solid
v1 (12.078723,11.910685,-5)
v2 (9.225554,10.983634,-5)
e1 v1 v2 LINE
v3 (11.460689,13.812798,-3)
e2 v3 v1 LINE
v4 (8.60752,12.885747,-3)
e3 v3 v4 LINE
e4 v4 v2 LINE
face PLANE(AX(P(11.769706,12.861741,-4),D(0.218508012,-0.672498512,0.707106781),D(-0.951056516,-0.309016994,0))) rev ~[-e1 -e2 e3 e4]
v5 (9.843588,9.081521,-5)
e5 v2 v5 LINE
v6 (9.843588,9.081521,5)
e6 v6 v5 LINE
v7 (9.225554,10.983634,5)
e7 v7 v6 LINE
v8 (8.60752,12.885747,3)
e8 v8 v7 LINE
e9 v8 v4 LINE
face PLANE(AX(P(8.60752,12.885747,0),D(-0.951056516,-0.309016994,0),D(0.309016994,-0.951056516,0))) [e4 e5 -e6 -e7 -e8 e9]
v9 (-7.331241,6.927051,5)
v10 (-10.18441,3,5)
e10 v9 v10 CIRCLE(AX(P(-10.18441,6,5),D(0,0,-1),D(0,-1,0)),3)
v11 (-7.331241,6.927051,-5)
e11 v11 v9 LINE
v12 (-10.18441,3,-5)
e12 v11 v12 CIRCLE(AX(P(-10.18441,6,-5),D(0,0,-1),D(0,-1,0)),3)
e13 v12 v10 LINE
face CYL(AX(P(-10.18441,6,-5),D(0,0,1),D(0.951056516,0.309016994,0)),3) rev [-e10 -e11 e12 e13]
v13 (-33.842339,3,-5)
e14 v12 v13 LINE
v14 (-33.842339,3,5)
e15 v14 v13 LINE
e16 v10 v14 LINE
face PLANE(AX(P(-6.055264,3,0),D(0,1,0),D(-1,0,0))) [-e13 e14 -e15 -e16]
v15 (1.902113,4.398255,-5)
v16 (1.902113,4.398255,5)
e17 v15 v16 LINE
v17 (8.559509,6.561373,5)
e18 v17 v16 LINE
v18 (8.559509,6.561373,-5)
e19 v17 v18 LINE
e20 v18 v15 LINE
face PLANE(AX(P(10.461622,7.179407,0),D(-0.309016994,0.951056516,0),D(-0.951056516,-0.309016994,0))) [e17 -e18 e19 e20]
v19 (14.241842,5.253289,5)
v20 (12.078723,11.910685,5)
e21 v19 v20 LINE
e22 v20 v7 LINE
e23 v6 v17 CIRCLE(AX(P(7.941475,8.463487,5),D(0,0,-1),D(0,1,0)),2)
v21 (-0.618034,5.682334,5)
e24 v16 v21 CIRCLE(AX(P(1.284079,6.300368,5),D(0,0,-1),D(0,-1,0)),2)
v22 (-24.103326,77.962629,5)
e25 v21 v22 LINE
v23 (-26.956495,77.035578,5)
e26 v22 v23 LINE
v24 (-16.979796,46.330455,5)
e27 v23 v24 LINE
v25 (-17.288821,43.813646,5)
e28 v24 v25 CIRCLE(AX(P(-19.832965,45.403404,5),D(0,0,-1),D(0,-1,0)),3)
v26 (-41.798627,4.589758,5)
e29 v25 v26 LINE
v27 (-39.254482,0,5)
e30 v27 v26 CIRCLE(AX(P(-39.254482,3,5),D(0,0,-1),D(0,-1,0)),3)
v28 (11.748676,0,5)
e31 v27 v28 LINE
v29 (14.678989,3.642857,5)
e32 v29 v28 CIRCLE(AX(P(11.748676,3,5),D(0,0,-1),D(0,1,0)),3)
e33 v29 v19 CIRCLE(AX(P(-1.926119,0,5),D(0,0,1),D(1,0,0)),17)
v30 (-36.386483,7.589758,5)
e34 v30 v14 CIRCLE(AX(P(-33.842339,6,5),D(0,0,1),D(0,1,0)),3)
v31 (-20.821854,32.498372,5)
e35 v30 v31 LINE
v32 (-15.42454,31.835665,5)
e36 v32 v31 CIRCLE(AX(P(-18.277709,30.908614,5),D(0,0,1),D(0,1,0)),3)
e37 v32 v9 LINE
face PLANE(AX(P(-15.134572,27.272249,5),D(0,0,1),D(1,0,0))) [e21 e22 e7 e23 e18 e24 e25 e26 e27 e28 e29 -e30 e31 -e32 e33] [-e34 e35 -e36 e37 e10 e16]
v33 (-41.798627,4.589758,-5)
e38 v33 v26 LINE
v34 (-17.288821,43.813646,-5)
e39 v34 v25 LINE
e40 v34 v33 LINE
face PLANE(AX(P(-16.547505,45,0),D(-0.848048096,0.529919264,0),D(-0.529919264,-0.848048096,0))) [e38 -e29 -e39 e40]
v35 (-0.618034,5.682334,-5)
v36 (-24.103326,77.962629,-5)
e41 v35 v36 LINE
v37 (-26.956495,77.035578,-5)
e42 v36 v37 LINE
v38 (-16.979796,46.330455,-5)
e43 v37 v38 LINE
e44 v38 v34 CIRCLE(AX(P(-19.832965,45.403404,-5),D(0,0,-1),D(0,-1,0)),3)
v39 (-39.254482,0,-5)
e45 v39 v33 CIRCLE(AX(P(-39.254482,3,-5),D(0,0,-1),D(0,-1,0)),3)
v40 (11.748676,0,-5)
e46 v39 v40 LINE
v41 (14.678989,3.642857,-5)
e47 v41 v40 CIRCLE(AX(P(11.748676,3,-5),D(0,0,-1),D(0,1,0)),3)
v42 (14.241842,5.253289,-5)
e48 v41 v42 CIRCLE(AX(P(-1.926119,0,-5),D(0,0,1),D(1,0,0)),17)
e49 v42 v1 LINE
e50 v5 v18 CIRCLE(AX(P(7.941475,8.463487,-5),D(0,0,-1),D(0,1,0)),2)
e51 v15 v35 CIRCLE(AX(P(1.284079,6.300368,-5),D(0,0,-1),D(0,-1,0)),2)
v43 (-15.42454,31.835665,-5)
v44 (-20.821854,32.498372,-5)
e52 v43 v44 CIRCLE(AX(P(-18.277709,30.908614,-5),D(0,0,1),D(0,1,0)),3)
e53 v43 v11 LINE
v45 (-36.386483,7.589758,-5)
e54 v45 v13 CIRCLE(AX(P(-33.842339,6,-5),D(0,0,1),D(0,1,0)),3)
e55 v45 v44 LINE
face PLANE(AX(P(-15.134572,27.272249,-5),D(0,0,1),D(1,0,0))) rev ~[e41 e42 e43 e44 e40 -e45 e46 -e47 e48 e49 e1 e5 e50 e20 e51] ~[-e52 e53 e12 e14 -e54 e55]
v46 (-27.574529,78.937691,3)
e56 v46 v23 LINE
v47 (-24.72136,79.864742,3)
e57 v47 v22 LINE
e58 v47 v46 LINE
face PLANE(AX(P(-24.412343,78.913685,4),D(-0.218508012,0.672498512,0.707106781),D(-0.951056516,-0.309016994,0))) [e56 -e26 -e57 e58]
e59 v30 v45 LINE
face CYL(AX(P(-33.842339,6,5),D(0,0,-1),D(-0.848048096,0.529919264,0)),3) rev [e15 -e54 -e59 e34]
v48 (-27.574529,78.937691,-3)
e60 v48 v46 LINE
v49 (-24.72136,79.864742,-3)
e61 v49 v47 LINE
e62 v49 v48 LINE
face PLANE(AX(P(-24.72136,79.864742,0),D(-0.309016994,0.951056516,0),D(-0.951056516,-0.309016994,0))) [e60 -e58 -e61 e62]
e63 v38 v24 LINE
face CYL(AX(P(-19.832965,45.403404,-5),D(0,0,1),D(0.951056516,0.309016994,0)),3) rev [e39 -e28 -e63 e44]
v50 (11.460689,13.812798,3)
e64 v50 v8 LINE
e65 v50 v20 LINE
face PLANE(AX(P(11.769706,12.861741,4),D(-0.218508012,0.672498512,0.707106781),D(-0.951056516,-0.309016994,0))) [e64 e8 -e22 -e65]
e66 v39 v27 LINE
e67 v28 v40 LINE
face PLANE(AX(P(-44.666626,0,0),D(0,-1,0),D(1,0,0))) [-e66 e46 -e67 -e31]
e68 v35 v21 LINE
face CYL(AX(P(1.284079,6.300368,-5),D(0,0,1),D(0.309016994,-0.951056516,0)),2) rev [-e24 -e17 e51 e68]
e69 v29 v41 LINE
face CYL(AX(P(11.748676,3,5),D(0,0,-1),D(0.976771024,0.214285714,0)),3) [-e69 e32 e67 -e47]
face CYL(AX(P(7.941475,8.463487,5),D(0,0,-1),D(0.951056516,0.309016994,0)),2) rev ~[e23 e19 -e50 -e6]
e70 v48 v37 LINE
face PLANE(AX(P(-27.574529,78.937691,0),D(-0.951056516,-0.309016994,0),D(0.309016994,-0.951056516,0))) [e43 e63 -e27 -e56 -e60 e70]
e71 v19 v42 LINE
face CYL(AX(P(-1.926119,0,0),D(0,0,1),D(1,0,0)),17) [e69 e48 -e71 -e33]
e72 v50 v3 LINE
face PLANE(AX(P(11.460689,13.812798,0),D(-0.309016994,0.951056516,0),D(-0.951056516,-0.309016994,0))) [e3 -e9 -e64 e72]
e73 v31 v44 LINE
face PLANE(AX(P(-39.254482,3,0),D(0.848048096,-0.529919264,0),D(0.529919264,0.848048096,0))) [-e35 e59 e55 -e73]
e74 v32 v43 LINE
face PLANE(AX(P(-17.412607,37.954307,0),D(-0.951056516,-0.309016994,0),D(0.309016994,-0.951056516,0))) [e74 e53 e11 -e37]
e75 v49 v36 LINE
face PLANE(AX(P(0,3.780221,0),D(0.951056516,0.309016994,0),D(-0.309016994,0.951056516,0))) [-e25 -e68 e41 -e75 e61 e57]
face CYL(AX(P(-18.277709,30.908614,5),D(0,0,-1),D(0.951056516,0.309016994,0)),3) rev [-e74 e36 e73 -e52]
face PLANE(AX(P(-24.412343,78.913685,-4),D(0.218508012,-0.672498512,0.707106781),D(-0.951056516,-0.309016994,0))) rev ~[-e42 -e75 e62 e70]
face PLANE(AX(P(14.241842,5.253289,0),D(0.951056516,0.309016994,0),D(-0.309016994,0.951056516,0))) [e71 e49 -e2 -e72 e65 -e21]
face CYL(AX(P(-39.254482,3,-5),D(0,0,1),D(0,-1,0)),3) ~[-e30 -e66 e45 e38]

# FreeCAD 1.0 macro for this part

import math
import FreeCAD as App
import Part
import Sketcher
Q = App.Units.Quantity


def edges_at(feature, points):
    """Names of the edges that pass closest to the given points."""
    edges = feature.Shape.Edges
    near = lambda p: min(range(len(edges)), key=lambda i: edges[i].distToShape(Part.Vertex(*p))[0])
    return sorted({f"Edge{near(p) + 1}" for p in points})

doc = App.newDocument("Part")
params = doc.addObject("Spreadsheet::Sheet", "Params")
for row, (alias, value) in enumerate([
    ("sketch1_radius", "17 mm"),
    ("sketch1_length", "11 mm"),
    ("sketch1_length2", "80 mm"),
    ("sketch1_length3", "3 mm"),
    ("sketch1_length4", "9 mm"),
    ("pad1_length", "10 mm"),
    ("chamfer_size", "2 mm"),
    ("fillet_radius", "3 mm"),
    ("fillet2_radius", "2 mm"),
], start=1):
    params.set(f"A{row}", alias)
    params.set(f"B{row}", "=" + value)
    params.setAlias(f"B{row}", alias)

body = doc.addObject("PartDesign::Body", "Body")

# Sketch on XY plane
sketch1 = doc.addObject("Sketcher::SketchObject", "Sketch")
body.addObject(sketch1)
sketch1.AttachmentSupport = (doc.XY_Plane, [""])
sketch1.MapMode = "FlatFace"
sketch1.addGeometry([
    Part.LineSegment(App.Vector(10.5, 7.2, 0), App.Vector(0, 3.8, 0)),  # 0
    Part.LineSegment(App.Vector(0, 3.8, 0), App.Vector(-24.7, 79.9, 0)),  # 1
    Part.LineSegment(App.Vector(-24.7, 79.9, 0), App.Vector(-27.6, 78.9, 0)),  # 2
    Part.LineSegment(App.Vector(-27.6, 78.9, 0), App.Vector(-16.5, 45, 0)),  # 3
    Part.LineSegment(App.Vector(-16.5, 45, 0), App.Vector(-44.7, 0, 0)),  # 4
    Part.LineSegment(App.Vector(-44.7, 0, 0), App.Vector(15.1, 0, 0)),  # 5
    Part.ArcOfCircle(Part.Circle(App.Vector(-1.9, 0, 0), App.Vector(0, 0, 1), 17), math.radians(0), math.radians(18)),  # 6
    Part.LineSegment(App.Vector(14.2, 5.3, 0), App.Vector(11.5, 13.8, 0)),  # 7
    Part.LineSegment(App.Vector(11.5, 13.8, 0), App.Vector(8.6, 12.9, 0)),  # 8
    Part.LineSegment(App.Vector(8.6, 12.9, 0), App.Vector(10.5, 7.2, 0)),  # 9
    Part.LineSegment(App.Vector(-17.4, 38, 0), App.Vector(-6.1, 3, 0)),  # 10
    Part.LineSegment(App.Vector(-6.1, 3, 0), App.Vector(-39.3, 3, 0)),  # 11
    Part.LineSegment(App.Vector(-39.3, 3, 0), App.Vector(-17.4, 38, 0)),  # 12
], False)
sketch1.addConstraint([
    Sketcher.Constraint("Coincident", 0, 2, 1, 1),
    Sketcher.Constraint("Coincident", 1, 2, 2, 1),
    Sketcher.Constraint("Coincident", 2, 2, 3, 1),
    Sketcher.Constraint("Coincident", 3, 2, 4, 1),
    Sketcher.Constraint("Coincident", 4, 2, 5, 1),
    Sketcher.Constraint("Coincident", 5, 2, 6, 1),
    Sketcher.Constraint("Tangent", 6, 2, 7, 1),
    Sketcher.Constraint("Coincident", 7, 2, 8, 1),
    Sketcher.Constraint("Coincident", 8, 2, 9, 1),
    Sketcher.Constraint("Coincident", 9, 2, 0, 1),
    Sketcher.Constraint("Coincident", 10, 2, 11, 1),
    Sketcher.Constraint("Coincident", 11, 2, 12, 1),
    Sketcher.Constraint("Coincident", 12, 2, 10, 1),
    Sketcher.Constraint("Horizontal", 5),
    Sketcher.Constraint("Horizontal", 11),
    Sketcher.Constraint("PointOnObject", 6, 3, -1),
    Sketcher.Constraint("PointOnObject", 0, 2, -2),
    Sketcher.Constraint("PointOnObject", 4, 2, -1),
    Sketcher.Constraint("Perpendicular", 0, 1),
    Sketcher.Constraint("Perpendicular", 1, 2),
    Sketcher.Constraint("Perpendicular", 2, 3),
    Sketcher.Constraint("Parallel", 3, 7),
    Sketcher.Constraint("Perpendicular", 7, 8),
    Sketcher.Constraint("Perpendicular", 8, 9),
    Sketcher.Constraint("Parallel", 9, 10),
    Sketcher.Constraint("Parallel", 4, 12),
    Sketcher.Constraint("Equal", 2, 8),
    Sketcher.Constraint("Radius", 6, 17.0),
    Sketcher.Constraint("Angle", 0, Q("-162 deg")),
    Sketcher.Constraint("Angle", 4, Q("-122 deg")),
    Sketcher.Constraint("Distance", 0, 11.0),
    Sketcher.Constraint("Distance", 1, 80.0),
    Sketcher.Constraint("Distance", 2, 3.0),
    Sketcher.Constraint("Distance", 7, 9.0),
    Sketcher.Constraint("Distance", 9, 6.0),
    Sketcher.Constraint("DistanceY", -1, 1, 3, 2, 45.0),
    Sketcher.Constraint("DistanceY", -1, 1, 10, 2, 3.0),
    Sketcher.Constraint("DistanceX", 11, 2, 11, 1, 33.199218),
    Sketcher.Constraint("DistanceX", 10, 2, -1, 1, 6.055264),
])
sketch1.setExpression("Constraints[27]", "Params.sketch1_radius")
sketch1.setExpression("Constraints[30]", "Params.sketch1_length")
sketch1.setExpression("Constraints[31]", "Params.sketch1_length2")
sketch1.setExpression("Constraints[32]", "Params.sketch1_length3")
sketch1.setExpression("Constraints[33]", "Params.sketch1_length4")
pad1 = doc.addObject("PartDesign::Pad", "Pad")
body.addObject(pad1)
pad1.Profile = sketch1
pad1.setExpression("Length", "Params.pad1_length")
pad1.Midplane = True
doc.recompute()

chamfer = doc.addObject("PartDesign::Chamfer", "Chamfer")
body.addObject(chamfer)
chamfer.Base = (pad1, edges_at(pad1, [
    (10.034, 13.349, 5),
    (10.034, 13.349, -5),
    (-26.148, 79.401, 5),
    (-26.148, 79.401, -5),
]))
chamfer.setExpression("Size", "Params.chamfer_size")
doc.recompute()

fillet = doc.addObject("PartDesign::Fillet", "Fillet")
body.addObject(fillet)
fillet.Base = (chamfer, edges_at(chamfer, [
    (-17.413, 37.954, 0),
    (-39.254, 3, 0),
    (-6.055, 3, 0),
    (-44.667, 0, 0),
    (-16.548, 45, 0),
    (15.074, 0, 0),
]))
fillet.setExpression("Radius", "Params.fillet_radius")
doc.recompute()

fillet2 = doc.addObject("PartDesign::Fillet", "Fillet001")
body.addObject(fillet2)
fillet2.Base = (fillet, edges_at(fillet, [(0, 3.78, 0), (10.462, 7.179, 0)]))
fillet2.setExpression("Radius", "Params.fillet2_radius")

doc.recompute()
